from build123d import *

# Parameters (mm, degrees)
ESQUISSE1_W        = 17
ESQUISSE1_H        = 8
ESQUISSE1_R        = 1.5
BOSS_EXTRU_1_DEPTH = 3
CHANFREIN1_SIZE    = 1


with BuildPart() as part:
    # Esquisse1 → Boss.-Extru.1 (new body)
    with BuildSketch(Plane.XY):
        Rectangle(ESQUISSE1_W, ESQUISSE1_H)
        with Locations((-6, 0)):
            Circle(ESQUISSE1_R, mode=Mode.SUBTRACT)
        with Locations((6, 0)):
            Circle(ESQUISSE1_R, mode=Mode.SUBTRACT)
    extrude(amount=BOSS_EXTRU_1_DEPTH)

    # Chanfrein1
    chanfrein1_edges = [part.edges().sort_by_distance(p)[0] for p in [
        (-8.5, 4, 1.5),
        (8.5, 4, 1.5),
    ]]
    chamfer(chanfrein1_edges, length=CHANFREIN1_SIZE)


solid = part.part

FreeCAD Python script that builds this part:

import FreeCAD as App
import Part
import Sketcher
from FreeCAD import Vector


def edges_at(feature, points):
    """Names of the edges that pass closest to the given points."""
    edges = feature.Shape.Edges
    near = lambda p: min(range(len(edges)), key=lambda i: edges[i].distToShape(Part.Vertex(*p))[0])
    return sorted({f"Edge{near(p) + 1}" for p in points})


def add_polygon(sketch, points):
    """Adds a closed chain of lines whose ends are joined by coincident constraints."""
    first, n = sketch.GeometryCount, len(points)
    for a, b in zip(points, points[1:] + points[:1]):
        sketch.addGeometry(Part.LineSegment(App.Vector(*a, 0), App.Vector(*b, 0)), False)
    for i in range(n):
        sketch.addConstraint(Sketcher.Constraint("Coincident", first + i, 2, first + (i + 1) % n, 1))

doc = App.newDocument("Part")
params = doc.addObject("Spreadsheet::Sheet", "Params")
for row, (alias, value) in enumerate([
    ("sketch1_diameter", "3 mm"),
    ("sketch1_width", "17 mm"),
    ("sketch1_height", "8 mm"),
    ("pad1_length", "3 mm"),
    ("chamfer_size", "1 mm"),
], start=1):
    params.set(f"A{row}", alias)
    params.set(f"B{row}", "=" + value)
    params.setAlias(f"B{row}", alias)

body = doc.addObject("PartDesign::Body", "Body")

sketch1 = doc.addObject("Sketcher::SketchObject", "Sketch")
body.addObject(sketch1)
sketch1.AttachmentSupport = (doc.XY_Plane, [""])
sketch1.MapMode = "FlatFace"
add_polygon(sketch1, [(-8.5, 4), (-8.5, -4), (8.5, -4), (8.5, 4)])
sketch1.addGeometry(Part.Circle(Vector(-6, 0, 0), Vector(0, 0, 1), 1.5), False)
sketch1.addGeometry(Part.Circle(Vector(6, 0, 0), Vector(0, 0, 1), 1.5), False)
sketch1.addConstraint(Sketcher.Constraint("Vertical", 0))
sketch1.addConstraint(Sketcher.Constraint("Horizontal", 1))
sketch1.addConstraint(Sketcher.Constraint("Vertical", 2))
sketch1.addConstraint(Sketcher.Constraint("Horizontal", 3))
sketch1.addConstraint(Sketcher.Constraint("Equal", 4, 5))
sketch1.addConstraint(Sketcher.Constraint("Symmetric", 4, 3, 5, 3, -1, 1))
sketch1.addConstraint(Sketcher.Constraint("Symmetric", 0, 2, 2, 2, -1, 1))
sketch1.addConstraint(Sketcher.Constraint("PointOnObject", 4, 3, -1))
sketch1.addConstraint(Sketcher.Constraint("Diameter", 4, 3.0))
sketch1.addConstraint(Sketcher.Constraint("DistanceX", 1, 1, 1, 2, 17.0))
sketch1.addConstraint(Sketcher.Constraint("DistanceY", 0, 2, 0, 1, 8.0))
sketch1.addConstraint(Sketcher.Constraint("DistanceX", 4, 3, -1, 1, 6.0))
sketch1.setExpression("Constraints[12]", "Params.sketch1_diameter")
sketch1.setExpression("Constraints[13]", "Params.sketch1_width")
sketch1.setExpression("Constraints[14]", "Params.sketch1_height")
pad1 = doc.addObject("PartDesign::Pad", "Pad")
body.addObject(pad1)
pad1.Profile = sketch1
pad1.setExpression("Length", "Params.pad1_length")
doc.recompute()

chamfer = doc.addObject("PartDesign::Chamfer", "Chamfer")
body.addObject(chamfer)
chamfer.Base = (pad1, edges_at(pad1, [(-8.5, 4, 1.5), (8.5, 4, 1.5)]))
chamfer.setExpression("Size", "Params.chamfer_size")

doc.recompute()
